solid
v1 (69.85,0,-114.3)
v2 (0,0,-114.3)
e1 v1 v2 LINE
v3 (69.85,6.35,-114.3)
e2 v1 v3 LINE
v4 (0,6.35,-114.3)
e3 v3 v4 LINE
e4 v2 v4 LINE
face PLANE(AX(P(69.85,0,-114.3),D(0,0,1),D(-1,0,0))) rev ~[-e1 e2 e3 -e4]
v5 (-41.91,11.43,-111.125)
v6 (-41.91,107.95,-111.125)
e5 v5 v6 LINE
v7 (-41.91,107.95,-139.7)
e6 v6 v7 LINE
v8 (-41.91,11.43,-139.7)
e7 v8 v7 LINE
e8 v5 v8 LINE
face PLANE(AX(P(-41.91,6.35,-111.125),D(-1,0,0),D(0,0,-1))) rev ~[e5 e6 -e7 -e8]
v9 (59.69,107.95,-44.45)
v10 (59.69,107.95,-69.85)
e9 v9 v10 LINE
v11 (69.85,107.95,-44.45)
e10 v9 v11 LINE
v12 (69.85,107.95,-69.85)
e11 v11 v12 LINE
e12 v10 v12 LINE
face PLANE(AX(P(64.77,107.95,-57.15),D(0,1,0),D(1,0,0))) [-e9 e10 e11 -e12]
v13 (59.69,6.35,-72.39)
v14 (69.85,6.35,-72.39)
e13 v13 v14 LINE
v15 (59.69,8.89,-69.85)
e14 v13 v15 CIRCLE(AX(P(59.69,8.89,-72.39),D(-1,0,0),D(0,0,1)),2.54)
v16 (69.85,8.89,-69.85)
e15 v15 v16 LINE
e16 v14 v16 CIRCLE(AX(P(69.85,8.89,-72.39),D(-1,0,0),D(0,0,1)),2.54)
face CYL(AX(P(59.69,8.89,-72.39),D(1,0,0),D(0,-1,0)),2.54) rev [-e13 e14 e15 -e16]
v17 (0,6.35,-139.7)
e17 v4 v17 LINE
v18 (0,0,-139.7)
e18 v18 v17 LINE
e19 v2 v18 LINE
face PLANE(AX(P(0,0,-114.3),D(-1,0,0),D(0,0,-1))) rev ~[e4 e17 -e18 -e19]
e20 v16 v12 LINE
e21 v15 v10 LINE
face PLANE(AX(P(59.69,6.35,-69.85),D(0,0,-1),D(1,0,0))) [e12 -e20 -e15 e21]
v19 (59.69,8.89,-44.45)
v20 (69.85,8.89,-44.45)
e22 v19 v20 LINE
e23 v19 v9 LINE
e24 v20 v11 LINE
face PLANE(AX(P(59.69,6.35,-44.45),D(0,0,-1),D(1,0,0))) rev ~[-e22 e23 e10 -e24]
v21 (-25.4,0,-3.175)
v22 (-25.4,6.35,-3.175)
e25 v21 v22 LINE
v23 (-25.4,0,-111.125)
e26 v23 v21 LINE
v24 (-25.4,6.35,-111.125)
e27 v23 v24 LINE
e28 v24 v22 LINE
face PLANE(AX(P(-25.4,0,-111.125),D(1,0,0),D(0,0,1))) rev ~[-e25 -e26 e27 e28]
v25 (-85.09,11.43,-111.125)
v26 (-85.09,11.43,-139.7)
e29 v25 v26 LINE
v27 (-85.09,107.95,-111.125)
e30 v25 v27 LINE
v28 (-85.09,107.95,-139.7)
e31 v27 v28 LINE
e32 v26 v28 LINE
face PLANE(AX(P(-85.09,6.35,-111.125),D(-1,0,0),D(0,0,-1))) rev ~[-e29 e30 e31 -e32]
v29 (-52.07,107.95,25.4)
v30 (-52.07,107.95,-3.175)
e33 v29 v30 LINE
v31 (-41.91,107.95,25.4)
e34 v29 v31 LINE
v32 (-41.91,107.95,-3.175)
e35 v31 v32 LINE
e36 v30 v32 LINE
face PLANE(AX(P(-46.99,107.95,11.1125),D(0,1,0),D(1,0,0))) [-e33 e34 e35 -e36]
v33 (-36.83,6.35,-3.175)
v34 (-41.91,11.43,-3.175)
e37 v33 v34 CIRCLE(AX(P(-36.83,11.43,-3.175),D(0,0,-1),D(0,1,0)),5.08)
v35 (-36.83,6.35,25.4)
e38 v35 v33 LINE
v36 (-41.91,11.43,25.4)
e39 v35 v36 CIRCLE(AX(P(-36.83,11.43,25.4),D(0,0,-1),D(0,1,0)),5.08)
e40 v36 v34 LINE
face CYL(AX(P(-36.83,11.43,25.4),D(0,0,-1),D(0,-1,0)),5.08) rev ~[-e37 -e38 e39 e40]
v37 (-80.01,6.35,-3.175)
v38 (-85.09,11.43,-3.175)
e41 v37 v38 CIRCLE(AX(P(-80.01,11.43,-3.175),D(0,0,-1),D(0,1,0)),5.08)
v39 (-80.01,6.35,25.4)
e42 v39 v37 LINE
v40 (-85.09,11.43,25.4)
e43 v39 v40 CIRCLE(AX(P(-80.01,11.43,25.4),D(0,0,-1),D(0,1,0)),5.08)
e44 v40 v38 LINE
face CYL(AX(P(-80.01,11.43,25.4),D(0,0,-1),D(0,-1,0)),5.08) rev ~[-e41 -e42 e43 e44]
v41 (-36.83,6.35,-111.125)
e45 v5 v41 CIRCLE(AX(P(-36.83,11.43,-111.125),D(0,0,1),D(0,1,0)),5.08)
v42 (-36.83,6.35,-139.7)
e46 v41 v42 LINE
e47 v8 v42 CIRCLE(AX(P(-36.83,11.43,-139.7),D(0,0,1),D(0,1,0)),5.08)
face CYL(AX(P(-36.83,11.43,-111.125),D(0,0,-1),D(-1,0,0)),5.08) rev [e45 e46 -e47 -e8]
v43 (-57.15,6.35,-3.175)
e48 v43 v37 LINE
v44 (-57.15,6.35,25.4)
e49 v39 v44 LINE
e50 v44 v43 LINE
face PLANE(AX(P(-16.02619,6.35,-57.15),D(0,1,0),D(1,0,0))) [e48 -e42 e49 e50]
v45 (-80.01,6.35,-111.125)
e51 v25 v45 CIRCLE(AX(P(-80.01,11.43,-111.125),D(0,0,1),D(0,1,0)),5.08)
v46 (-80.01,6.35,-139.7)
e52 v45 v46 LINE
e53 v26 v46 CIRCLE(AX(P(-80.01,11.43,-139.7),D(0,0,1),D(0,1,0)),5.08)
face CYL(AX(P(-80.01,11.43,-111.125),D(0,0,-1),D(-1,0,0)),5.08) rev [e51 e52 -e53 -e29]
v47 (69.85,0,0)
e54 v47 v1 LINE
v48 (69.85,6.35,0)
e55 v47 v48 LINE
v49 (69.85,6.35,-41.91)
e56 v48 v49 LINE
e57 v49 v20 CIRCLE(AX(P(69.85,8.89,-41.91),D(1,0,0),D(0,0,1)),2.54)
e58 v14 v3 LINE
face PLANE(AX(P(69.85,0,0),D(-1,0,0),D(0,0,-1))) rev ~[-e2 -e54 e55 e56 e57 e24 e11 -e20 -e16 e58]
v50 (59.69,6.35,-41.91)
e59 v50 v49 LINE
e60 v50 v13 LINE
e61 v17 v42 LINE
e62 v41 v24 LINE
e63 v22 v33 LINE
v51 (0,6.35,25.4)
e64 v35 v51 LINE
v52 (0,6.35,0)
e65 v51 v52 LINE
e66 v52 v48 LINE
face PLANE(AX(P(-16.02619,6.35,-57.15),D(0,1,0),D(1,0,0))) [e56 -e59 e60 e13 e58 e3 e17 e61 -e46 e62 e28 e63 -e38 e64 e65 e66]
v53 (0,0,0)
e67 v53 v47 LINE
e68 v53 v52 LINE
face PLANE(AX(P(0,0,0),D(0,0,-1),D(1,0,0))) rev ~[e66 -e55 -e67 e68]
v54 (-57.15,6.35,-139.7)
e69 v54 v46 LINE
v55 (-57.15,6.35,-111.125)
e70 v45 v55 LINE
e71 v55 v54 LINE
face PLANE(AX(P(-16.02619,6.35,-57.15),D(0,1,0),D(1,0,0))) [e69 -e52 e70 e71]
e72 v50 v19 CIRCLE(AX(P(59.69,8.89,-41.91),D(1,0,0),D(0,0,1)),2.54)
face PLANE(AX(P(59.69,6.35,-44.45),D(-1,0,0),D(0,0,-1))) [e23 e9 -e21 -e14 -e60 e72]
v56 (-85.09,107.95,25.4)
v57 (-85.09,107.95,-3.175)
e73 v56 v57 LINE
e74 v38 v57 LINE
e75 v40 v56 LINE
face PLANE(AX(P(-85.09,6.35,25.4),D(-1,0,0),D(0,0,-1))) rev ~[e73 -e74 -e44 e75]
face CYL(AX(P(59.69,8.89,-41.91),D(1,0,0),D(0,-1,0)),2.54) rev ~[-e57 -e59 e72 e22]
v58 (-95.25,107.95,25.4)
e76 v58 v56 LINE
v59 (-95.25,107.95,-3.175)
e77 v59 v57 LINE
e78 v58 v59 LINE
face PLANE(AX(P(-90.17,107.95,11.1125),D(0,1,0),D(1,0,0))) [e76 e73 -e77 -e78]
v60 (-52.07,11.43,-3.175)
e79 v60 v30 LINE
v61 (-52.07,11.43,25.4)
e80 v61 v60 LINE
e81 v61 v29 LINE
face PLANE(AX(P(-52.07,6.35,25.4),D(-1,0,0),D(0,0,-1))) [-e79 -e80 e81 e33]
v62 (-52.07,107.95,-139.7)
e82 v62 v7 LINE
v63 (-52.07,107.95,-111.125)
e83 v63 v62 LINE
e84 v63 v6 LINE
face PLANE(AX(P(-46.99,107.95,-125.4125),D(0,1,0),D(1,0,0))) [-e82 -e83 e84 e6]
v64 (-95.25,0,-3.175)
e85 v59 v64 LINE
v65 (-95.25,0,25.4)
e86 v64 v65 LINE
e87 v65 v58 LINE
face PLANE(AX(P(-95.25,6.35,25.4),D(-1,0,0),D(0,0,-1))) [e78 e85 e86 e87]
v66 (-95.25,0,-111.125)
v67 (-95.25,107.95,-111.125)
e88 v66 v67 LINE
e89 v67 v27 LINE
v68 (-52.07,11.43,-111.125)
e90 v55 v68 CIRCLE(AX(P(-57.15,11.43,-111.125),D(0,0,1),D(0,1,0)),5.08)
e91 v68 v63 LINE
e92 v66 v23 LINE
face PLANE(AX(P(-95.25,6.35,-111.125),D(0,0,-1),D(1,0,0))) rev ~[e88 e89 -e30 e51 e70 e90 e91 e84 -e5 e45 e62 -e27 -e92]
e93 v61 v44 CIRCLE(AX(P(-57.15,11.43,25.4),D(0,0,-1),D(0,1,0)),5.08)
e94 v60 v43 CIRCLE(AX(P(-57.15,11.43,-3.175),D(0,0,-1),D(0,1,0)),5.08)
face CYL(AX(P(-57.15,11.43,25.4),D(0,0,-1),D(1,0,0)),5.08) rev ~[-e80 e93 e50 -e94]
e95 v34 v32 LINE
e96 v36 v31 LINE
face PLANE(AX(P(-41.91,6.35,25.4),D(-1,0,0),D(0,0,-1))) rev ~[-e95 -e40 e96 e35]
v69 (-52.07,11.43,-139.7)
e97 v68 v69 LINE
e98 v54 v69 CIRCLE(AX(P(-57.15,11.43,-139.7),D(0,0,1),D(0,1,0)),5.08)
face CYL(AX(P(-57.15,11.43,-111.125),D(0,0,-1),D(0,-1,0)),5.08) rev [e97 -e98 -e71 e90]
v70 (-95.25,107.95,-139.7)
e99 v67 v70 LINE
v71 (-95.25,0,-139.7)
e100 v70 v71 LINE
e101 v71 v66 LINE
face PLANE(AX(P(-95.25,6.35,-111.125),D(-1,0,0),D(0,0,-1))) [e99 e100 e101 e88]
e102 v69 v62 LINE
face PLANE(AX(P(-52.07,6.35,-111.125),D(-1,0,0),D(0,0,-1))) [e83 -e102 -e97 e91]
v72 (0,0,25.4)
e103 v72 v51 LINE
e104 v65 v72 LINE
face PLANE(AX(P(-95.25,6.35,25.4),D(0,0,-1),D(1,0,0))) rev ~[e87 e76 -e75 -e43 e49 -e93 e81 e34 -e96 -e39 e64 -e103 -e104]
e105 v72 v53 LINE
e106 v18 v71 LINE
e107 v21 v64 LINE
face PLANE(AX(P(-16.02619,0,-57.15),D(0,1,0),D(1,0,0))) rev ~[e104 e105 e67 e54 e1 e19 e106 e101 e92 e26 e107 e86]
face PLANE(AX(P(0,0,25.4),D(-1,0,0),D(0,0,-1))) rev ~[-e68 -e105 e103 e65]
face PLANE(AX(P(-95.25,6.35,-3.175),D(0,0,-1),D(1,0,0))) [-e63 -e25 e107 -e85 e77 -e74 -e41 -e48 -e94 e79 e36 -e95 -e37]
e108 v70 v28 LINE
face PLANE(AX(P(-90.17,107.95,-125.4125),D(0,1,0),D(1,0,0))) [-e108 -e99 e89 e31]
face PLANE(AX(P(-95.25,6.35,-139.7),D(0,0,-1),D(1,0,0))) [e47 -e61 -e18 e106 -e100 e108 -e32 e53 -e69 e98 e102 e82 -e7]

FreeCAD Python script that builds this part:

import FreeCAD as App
import Part
import Sketcher
Q = App.Units.Quantity


def edges_at(feature, points):
    """Names of the edges that pass closest to the given points."""
    edges = feature.Shape.Edges
    near = lambda p: min(range(len(edges)), key=lambda i: edges[i].distToShape(Part.Vertex(*p))[0])
    return sorted({f"Edge{near(p) + 1}" for p in points})


def add_polygon(sketch, points):
    """Adds a closed chain of lines whose ends are joined by coincident constraints."""
    first, n = sketch.GeometryCount, len(points)
    for a, b in zip(points, points[1:] + points[:1]):
        sketch.addGeometry(Part.LineSegment(App.Vector(*a, 0), App.Vector(*b, 0)), False)
    for i in range(n):
        sketch.addConstraint(Sketcher.Constraint("Coincident", first + i, 2, first + (i + 1) % n, 1))

doc = App.newDocument("Part")
params = doc.addObject("Spreadsheet::Sheet", "Params")
for row, (alias, value) in enumerate([
    ("sketch1_height", "1 in"),
    ("sketch1_height2", "4.5 in"),
    ("sketch1_width", "3.75 in"),
    ("sketch1_height3", "4.25 in"),
    ("pad1_length", "0.25 in"),
    ("sketch2_width", "0.4 in"),
    ("sketch2_height", "1.125 in"),
    ("pad2_length", "4 in"),
    ("sketch3_width", "0.4 in"),
    ("sketch3_height", "1.125 in"),
    ("pad3_length", "4 in"),
    ("sketch4_height", "1 in"),
    ("sketch4_width", "0.4 in"),
    ("pad4_length", "4 in"),
    ("fillet_radius", "0.2 in"),
    ("fillet2_radius", "0.2 in"),
    ("fillet3_radius", "0.2 in"),
    ("fillet4_radius", "0.2 in"),
    ("fillet5_radius", "0.2 in"),
    ("fillet6_radius", "0.2 in"),
    ("fillet7_radius", "0.1 in"),
    ("fillet8_radius", "0.1 in"),
], start=1):
    params.set(f"A{row}", alias)
    params.set(f"B{row}", "=" + value)
    params.setAlias(f"B{row}", alias)

body = doc.addObject("PartDesign::Body", "Body")

sketch1 = doc.addObject("Sketcher::SketchObject", "Sketch")
body.addObject(sketch1)
sketch1.AttachmentSupport = (doc.XZ_Plane, [""])
sketch1.MapMode = "FlatFace"
add_polygon(sketch1, [(0, -114), (0, -140), (-95, -140), (-95, -111), (-25, -111), (-25, -3), (-95, -3), (-95, 25), (0, 25), (0, 0), (70, 0), (70, -114)])
sketch1.addConstraint(Sketcher.Constraint("Vertical", 0))
sketch1.addConstraint(Sketcher.Constraint("Horizontal", 1))
sketch1.addConstraint(Sketcher.Constraint("Vertical", 2))
sketch1.addConstraint(Sketcher.Constraint("Horizontal", 3))
sketch1.addConstraint(Sketcher.Constraint("Vertical", 4))
sketch1.addConstraint(Sketcher.Constraint("Horizontal", 5))
sketch1.addConstraint(Sketcher.Constraint("Vertical", 6))
sketch1.addConstraint(Sketcher.Constraint("Horizontal", 7))
sketch1.addConstraint(Sketcher.Constraint("Vertical", 8))
sketch1.addConstraint(Sketcher.Constraint("Horizontal", 9))
sketch1.addConstraint(Sketcher.Constraint("Vertical", 10))
sketch1.addConstraint(Sketcher.Constraint("Horizontal", 11))
sketch1.addConstraint(Sketcher.Constraint("Coincident", 8, 2, -1, 1))
sketch1.addConstraint(Sketcher.Constraint("PointOnObject", 0, 2, -2))
sketch1.addConstraint(Sketcher.Constraint("Vertical", 2, 2, 5, 2))
sketch1.addConstraint(Sketcher.Constraint("Equal", 5, 9))
sketch1.addConstraint(Sketcher.Constraint("Equal", 2, 6))
sketch1.addConstraint(Sketcher.Constraint("Equal", 0, 8))
sketch1.addConstraint(Sketcher.Constraint("DistanceY", 0, 2, 0, 1, Q("1 in")))
sketch1.addConstraint(Sketcher.Constraint("DistanceY", 10, 2, 10, 1, Q("4.5 in")))
sketch1.addConstraint(Sketcher.Constraint("DistanceX", 3, 2, -1, 1, Q("1 in")))
sketch1.addConstraint(Sketcher.Constraint("DistanceX", 1, 2, 1, 1, Q("3.75 in")))
sketch1.addConstraint(Sketcher.Constraint("DistanceY", 4, 1, 4, 2, Q("4.25 in")))
sketch1.setExpression("Constraints[30]", "Params.sketch1_height")
sketch1.setExpression("Constraints[31]", "Params.sketch1_height2")
sketch1.setExpression("Constraints[33]", "Params.sketch1_width")
sketch1.setExpression("Constraints[34]", "Params.sketch1_height3")
pad1 = doc.addObject("PartDesign::Pad", "Pad")
body.addObject(pad1)
pad1.Profile = sketch1
pad1.setExpression("Length", "Params.pad1_length")
pad1.Reversed = True

sketch2 = doc.addObject("Sketcher::SketchObject", "Sketch001")
body.addObject(sketch2)
sketch2.AttachmentSupport = (doc.XZ_Plane, [""])
sketch2.MapMode = "FlatFace"
sketch2.AttachmentOffset = App.Placement(App.Vector(0, 0, -0.25 * 25.4), App.Rotation())
add_polygon(sketch2, [(-95, -3), (-95, 25), (-85, 25), (-85, -3)])
add_polygon(sketch2, [(-52, -3), (-52, 25), (-42, 25), (-42, -3)])
sketch2.addConstraint(Sketcher.Constraint("Vertical", 0))
sketch2.addConstraint(Sketcher.Constraint("Horizontal", 1))
sketch2.addConstraint(Sketcher.Constraint("Vertical", 2))
sketch2.addConstraint(Sketcher.Constraint("Horizontal", 3))
sketch2.addConstraint(Sketcher.Constraint("Vertical", 4))
sketch2.addConstraint(Sketcher.Constraint("Horizontal", 5))
sketch2.addConstraint(Sketcher.Constraint("Vertical", 6))
sketch2.addConstraint(Sketcher.Constraint("Horizontal", 7))
sketch2.addConstraint(Sketcher.Constraint("Horizontal", 1, 2, 4, 2))
sketch2.addConstraint(Sketcher.Constraint("Horizontal", 3, 2, 6, 2))
sketch2.addConstraint(Sketcher.Constraint("Equal", 3, 5))
sketch2.addConstraint(Sketcher.Constraint("DistanceX", 1, 1, 1, 2, Q("0.4 in")))
sketch2.addConstraint(Sketcher.Constraint("DistanceY", -1, 1, 0, 2, Q("1 in")))
sketch2.addConstraint(Sketcher.Constraint("DistanceX", 1, 2, 4, 2, Q("1.3 in")))
sketch2.addConstraint(Sketcher.Constraint("DistanceY", 0, 1, 0, 2, Q("1.125 in")))
sketch2.addConstraint(Sketcher.Constraint("DistanceX", 0, 2, -1, 1, Q("3.75 in")))
sketch2.setExpression("Constraints[19]", "Params.sketch2_width")
sketch2.setExpression("Constraints[22]", "Params.sketch2_height")
pad2 = doc.addObject("PartDesign::Pad", "Pad001")
body.addObject(pad2)
pad2.Profile = sketch2
pad2.setExpression("Length", "Params.pad2_length")
pad2.Reversed = True

sketch3 = doc.addObject("Sketcher::SketchObject", "Sketch002")
body.addObject(sketch3)
sketch3.AttachmentSupport = (doc.XZ_Plane, [""])
sketch3.MapMode = "FlatFace"
sketch3.AttachmentOffset = App.Placement(App.Vector(0, 0, -0.25 * 25.4), App.Rotation())
add_polygon(sketch3, [(-95, -140), (-95, -111), (-85, -111), (-85, -140)])
add_polygon(sketch3, [(-52, -140), (-52, -111), (-42, -111), (-42, -140)])
sketch3.addConstraint(Sketcher.Constraint("Vertical", 0))
sketch3.addConstraint(Sketcher.Constraint("Horizontal", 1))
sketch3.addConstraint(Sketcher.Constraint("Vertical", 2))
sketch3.addConstraint(Sketcher.Constraint("Horizontal", 3))
sketch3.addConstraint(Sketcher.Constraint("Vertical", 4))
sketch3.addConstraint(Sketcher.Constraint("Horizontal", 5))
sketch3.addConstraint(Sketcher.Constraint("Vertical", 6))
sketch3.addConstraint(Sketcher.Constraint("Horizontal", 7))
sketch3.addConstraint(Sketcher.Constraint("Horizontal", 1, 2, 4, 2))
sketch3.addConstraint(Sketcher.Constraint("Horizontal", 3, 2, 6, 2))
sketch3.addConstraint(Sketcher.Constraint("Equal", 3, 5))
sketch3.addConstraint(Sketcher.Constraint("DistanceX", 1, 1, 1, 2, Q("0.4 in")))
sketch3.addConstraint(Sketcher.Constraint("DistanceY", 2, 2, -1, 1, Q("5.5 in")))
sketch3.addConstraint(Sketcher.Constraint("DistanceX", 1, 2, 4, 2, Q("1.3 in")))
sketch3.addConstraint(Sketcher.Constraint("DistanceY", 0, 1, 0, 2, Q("1.125 in")))
sketch3.addConstraint(Sketcher.Constraint("DistanceX", 0, 2, -1, 1, Q("3.75 in")))
sketch3.setExpression("Constraints[19]", "Params.sketch3_width")
sketch3.setExpression("Constraints[22]", "Params.sketch3_height")
pad3 = doc.addObject("PartDesign::Pad", "Pad002")
body.addObject(pad3)
pad3.Profile = sketch3
pad3.setExpression("Length", "Params.pad3_length")
pad3.Reversed = True

sketch4 = doc.addObject("Sketcher::SketchObject", "Sketch003")
body.addObject(sketch4)
sketch4.AttachmentSupport = (doc.XZ_Plane, [""])
sketch4.MapMode = "FlatFace"
sketch4.AttachmentOffset = App.Placement(App.Vector(0, 0, -0.25 * 25.4), App.Rotation())
add_polygon(sketch4, [(60, -70), (60, -44), (70, -44), (70, -70)])
sketch4.addConstraint(Sketcher.Constraint("Vertical", 0))
sketch4.addConstraint(Sketcher.Constraint("Horizontal", 1))
sketch4.addConstraint(Sketcher.Constraint("Vertical", 2))
sketch4.addConstraint(Sketcher.Constraint("Horizontal", 3))
sketch4.addConstraint(Sketcher.Constraint("DistanceY", 0, 1, 0, 2, Q("1 in")))
sketch4.addConstraint(Sketcher.Constraint("DistanceX", 1, 1, 1, 2, Q("0.4 in")))
sketch4.addConstraint(Sketcher.Constraint("DistanceX", -1, 1, 0, 2, Q("2.35 in")))
sketch4.addConstraint(Sketcher.Constraint("DistanceY", 0, 2, -1, 1, Q("1.75 in")))
sketch4.setExpression("Constraints[8]", "Params.sketch4_height")
sketch4.setExpression("Constraints[9]", "Params.sketch4_width")
pad4 = doc.addObject("PartDesign::Pad", "Pad003")
body.addObject(pad4)
pad4.Profile = sketch4
pad4.setExpression("Length", "Params.pad4_length")
pad4.Reversed = True
doc.recompute()

fillet = doc.addObject("PartDesign::Fillet", "Fillet")
body.addObject(fillet)
fillet.Base = (pad4, edges_at(pad4, [(-41.91, 6.35, 11.113)]))
fillet.setExpression("Radius", "Params.fillet_radius")
doc.recompute()

fillet2 = doc.addObject("PartDesign::Fillet", "Fillet001")
body.addObject(fillet2)
fillet2.Base = (fillet, edges_at(fillet, [(-52.07, 6.35, 11.113)]))
fillet2.setExpression("Radius", "Params.fillet2_radius")
doc.recompute()

fillet3 = doc.addObject("PartDesign::Fillet", "Fillet002")
body.addObject(fillet3)
fillet3.Base = (fillet2, edges_at(fillet2, [(-85.09, 6.35, 11.113)]))
fillet3.setExpression("Radius", "Params.fillet3_radius")
doc.recompute()

fillet4 = doc.addObject("PartDesign::Fillet", "Fillet003")
body.addObject(fillet4)
fillet4.Base = (fillet3, edges_at(fillet3, [(-85.09, 6.35, -125.412)]))
fillet4.setExpression("Radius", "Params.fillet4_radius")
doc.recompute()

fillet5 = doc.addObject("PartDesign::Fillet", "Fillet004")
body.addObject(fillet5)
fillet5.Base = (fillet4, edges_at(fillet4, [(-52.07, 6.35, -125.412)]))
fillet5.setExpression("Radius", "Params.fillet5_radius")
doc.recompute()

fillet6 = doc.addObject("PartDesign::Fillet", "Fillet005")
body.addObject(fillet6)
fillet6.Base = (fillet5, edges_at(fillet5, [(-41.91, 6.35, -125.412)]))
fillet6.setExpression("Radius", "Params.fillet6_radius")
doc.recompute()

fillet7 = doc.addObject("PartDesign::Fillet", "Fillet006")
body.addObject(fillet7)
fillet7.Base = (fillet6, edges_at(fillet6, [(64.77, 6.35, -44.45)]))
fillet7.setExpression("Radius", "Params.fillet7_radius")
doc.recompute()

fillet8 = doc.addObject("PartDesign::Fillet", "Fillet007")
body.addObject(fillet8)
fillet8.Base = (fillet7, edges_at(fillet7, [(64.77, 6.35, -69.85)]))
fillet8.setExpression("Radius", "Params.fillet8_radius")

doc.recompute()
